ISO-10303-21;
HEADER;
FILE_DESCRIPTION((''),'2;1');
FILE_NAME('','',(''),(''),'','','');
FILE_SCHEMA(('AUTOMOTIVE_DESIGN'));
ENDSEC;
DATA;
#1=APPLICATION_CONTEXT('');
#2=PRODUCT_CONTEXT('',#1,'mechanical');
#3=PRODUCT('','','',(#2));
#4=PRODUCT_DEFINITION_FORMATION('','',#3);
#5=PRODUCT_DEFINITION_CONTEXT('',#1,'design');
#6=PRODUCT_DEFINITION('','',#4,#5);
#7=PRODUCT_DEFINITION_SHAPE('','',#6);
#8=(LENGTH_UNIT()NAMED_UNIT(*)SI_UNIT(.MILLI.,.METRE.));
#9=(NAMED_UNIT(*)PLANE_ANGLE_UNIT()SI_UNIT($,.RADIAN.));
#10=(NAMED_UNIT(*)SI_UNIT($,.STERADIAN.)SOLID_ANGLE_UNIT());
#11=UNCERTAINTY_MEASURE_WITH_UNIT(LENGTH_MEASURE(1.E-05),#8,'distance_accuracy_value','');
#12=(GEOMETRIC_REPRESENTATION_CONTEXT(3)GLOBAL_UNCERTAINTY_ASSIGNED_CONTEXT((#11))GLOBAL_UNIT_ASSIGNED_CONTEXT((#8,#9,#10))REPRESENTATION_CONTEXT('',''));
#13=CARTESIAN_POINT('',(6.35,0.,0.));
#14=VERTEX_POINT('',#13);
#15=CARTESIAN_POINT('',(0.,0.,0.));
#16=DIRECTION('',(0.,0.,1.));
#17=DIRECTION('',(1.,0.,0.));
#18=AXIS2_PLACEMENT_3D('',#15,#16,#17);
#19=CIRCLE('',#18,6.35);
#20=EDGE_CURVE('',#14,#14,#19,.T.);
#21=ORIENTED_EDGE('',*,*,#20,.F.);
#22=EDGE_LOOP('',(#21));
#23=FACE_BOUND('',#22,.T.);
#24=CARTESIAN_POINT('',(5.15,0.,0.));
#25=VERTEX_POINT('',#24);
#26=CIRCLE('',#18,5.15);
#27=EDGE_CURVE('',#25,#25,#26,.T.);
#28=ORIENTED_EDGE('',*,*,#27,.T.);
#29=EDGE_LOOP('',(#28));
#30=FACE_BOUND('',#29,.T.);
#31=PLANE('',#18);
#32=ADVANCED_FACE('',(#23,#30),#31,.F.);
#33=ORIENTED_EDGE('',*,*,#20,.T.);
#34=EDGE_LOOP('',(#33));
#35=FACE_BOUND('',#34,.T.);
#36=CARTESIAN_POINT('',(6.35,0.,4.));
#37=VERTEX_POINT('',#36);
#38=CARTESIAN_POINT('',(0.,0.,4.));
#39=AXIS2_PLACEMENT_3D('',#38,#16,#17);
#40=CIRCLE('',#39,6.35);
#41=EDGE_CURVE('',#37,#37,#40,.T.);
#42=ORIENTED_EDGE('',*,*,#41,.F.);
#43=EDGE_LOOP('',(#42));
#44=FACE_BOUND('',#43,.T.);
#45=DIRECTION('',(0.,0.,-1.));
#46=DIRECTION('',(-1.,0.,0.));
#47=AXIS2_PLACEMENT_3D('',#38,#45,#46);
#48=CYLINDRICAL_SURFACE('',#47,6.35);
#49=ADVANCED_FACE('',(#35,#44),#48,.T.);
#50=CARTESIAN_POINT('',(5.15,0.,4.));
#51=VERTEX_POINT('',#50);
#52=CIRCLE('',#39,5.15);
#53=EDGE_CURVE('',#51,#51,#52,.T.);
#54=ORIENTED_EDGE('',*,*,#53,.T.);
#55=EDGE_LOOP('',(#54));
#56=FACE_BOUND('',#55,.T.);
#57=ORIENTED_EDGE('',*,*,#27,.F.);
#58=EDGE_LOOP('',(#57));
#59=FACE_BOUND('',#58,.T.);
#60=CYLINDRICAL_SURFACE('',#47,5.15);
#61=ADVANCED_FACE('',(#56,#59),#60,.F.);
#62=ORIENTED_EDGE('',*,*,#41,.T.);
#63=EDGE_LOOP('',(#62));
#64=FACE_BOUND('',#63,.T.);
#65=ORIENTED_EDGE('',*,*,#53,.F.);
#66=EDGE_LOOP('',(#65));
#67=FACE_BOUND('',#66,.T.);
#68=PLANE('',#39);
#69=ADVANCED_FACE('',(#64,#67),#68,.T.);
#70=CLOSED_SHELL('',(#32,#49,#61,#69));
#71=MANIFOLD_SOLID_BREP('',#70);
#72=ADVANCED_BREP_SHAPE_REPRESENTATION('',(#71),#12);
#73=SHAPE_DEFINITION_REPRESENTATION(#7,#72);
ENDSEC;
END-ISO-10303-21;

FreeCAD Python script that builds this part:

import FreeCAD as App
import Part
import Sketcher

V = App.Vector

doc = App.newDocument("Part")
body = doc.addObject("PartDesign::Body", "Body")

# Sketch on XY plane
sketch1 = body.newObject("Sketcher::SketchObject", "Sketch")
sketch1.AttachmentSupport = (doc.getObject("XY_Plane"), [""])
sketch1.MapMode = "FlatFace"
sketch1.addGeometry(Part.Circle(V(0, 0, 0), V(0, 0, 1), 6.35), False)
sketch1.addGeometry(Part.Circle(V(0, 0, 0), V(0, 0, 1), 5.15), False)
sketch1.addConstraint(Sketcher.Constraint("Coincident", 0, 3, -1, 1))
sketch1.addConstraint(Sketcher.Constraint("Coincident", 1, 3, -1, 1))
sketch1.addConstraint(Sketcher.Constraint("Diameter", 0, 12.7))
sketch1.addConstraint(Sketcher.Constraint("Diameter", 1, 10.3))
pad1 = body.newObject("PartDesign::Pad", "Pad")
pad1.Profile = sketch1
pad1.Length = 4

doc.recompute()
